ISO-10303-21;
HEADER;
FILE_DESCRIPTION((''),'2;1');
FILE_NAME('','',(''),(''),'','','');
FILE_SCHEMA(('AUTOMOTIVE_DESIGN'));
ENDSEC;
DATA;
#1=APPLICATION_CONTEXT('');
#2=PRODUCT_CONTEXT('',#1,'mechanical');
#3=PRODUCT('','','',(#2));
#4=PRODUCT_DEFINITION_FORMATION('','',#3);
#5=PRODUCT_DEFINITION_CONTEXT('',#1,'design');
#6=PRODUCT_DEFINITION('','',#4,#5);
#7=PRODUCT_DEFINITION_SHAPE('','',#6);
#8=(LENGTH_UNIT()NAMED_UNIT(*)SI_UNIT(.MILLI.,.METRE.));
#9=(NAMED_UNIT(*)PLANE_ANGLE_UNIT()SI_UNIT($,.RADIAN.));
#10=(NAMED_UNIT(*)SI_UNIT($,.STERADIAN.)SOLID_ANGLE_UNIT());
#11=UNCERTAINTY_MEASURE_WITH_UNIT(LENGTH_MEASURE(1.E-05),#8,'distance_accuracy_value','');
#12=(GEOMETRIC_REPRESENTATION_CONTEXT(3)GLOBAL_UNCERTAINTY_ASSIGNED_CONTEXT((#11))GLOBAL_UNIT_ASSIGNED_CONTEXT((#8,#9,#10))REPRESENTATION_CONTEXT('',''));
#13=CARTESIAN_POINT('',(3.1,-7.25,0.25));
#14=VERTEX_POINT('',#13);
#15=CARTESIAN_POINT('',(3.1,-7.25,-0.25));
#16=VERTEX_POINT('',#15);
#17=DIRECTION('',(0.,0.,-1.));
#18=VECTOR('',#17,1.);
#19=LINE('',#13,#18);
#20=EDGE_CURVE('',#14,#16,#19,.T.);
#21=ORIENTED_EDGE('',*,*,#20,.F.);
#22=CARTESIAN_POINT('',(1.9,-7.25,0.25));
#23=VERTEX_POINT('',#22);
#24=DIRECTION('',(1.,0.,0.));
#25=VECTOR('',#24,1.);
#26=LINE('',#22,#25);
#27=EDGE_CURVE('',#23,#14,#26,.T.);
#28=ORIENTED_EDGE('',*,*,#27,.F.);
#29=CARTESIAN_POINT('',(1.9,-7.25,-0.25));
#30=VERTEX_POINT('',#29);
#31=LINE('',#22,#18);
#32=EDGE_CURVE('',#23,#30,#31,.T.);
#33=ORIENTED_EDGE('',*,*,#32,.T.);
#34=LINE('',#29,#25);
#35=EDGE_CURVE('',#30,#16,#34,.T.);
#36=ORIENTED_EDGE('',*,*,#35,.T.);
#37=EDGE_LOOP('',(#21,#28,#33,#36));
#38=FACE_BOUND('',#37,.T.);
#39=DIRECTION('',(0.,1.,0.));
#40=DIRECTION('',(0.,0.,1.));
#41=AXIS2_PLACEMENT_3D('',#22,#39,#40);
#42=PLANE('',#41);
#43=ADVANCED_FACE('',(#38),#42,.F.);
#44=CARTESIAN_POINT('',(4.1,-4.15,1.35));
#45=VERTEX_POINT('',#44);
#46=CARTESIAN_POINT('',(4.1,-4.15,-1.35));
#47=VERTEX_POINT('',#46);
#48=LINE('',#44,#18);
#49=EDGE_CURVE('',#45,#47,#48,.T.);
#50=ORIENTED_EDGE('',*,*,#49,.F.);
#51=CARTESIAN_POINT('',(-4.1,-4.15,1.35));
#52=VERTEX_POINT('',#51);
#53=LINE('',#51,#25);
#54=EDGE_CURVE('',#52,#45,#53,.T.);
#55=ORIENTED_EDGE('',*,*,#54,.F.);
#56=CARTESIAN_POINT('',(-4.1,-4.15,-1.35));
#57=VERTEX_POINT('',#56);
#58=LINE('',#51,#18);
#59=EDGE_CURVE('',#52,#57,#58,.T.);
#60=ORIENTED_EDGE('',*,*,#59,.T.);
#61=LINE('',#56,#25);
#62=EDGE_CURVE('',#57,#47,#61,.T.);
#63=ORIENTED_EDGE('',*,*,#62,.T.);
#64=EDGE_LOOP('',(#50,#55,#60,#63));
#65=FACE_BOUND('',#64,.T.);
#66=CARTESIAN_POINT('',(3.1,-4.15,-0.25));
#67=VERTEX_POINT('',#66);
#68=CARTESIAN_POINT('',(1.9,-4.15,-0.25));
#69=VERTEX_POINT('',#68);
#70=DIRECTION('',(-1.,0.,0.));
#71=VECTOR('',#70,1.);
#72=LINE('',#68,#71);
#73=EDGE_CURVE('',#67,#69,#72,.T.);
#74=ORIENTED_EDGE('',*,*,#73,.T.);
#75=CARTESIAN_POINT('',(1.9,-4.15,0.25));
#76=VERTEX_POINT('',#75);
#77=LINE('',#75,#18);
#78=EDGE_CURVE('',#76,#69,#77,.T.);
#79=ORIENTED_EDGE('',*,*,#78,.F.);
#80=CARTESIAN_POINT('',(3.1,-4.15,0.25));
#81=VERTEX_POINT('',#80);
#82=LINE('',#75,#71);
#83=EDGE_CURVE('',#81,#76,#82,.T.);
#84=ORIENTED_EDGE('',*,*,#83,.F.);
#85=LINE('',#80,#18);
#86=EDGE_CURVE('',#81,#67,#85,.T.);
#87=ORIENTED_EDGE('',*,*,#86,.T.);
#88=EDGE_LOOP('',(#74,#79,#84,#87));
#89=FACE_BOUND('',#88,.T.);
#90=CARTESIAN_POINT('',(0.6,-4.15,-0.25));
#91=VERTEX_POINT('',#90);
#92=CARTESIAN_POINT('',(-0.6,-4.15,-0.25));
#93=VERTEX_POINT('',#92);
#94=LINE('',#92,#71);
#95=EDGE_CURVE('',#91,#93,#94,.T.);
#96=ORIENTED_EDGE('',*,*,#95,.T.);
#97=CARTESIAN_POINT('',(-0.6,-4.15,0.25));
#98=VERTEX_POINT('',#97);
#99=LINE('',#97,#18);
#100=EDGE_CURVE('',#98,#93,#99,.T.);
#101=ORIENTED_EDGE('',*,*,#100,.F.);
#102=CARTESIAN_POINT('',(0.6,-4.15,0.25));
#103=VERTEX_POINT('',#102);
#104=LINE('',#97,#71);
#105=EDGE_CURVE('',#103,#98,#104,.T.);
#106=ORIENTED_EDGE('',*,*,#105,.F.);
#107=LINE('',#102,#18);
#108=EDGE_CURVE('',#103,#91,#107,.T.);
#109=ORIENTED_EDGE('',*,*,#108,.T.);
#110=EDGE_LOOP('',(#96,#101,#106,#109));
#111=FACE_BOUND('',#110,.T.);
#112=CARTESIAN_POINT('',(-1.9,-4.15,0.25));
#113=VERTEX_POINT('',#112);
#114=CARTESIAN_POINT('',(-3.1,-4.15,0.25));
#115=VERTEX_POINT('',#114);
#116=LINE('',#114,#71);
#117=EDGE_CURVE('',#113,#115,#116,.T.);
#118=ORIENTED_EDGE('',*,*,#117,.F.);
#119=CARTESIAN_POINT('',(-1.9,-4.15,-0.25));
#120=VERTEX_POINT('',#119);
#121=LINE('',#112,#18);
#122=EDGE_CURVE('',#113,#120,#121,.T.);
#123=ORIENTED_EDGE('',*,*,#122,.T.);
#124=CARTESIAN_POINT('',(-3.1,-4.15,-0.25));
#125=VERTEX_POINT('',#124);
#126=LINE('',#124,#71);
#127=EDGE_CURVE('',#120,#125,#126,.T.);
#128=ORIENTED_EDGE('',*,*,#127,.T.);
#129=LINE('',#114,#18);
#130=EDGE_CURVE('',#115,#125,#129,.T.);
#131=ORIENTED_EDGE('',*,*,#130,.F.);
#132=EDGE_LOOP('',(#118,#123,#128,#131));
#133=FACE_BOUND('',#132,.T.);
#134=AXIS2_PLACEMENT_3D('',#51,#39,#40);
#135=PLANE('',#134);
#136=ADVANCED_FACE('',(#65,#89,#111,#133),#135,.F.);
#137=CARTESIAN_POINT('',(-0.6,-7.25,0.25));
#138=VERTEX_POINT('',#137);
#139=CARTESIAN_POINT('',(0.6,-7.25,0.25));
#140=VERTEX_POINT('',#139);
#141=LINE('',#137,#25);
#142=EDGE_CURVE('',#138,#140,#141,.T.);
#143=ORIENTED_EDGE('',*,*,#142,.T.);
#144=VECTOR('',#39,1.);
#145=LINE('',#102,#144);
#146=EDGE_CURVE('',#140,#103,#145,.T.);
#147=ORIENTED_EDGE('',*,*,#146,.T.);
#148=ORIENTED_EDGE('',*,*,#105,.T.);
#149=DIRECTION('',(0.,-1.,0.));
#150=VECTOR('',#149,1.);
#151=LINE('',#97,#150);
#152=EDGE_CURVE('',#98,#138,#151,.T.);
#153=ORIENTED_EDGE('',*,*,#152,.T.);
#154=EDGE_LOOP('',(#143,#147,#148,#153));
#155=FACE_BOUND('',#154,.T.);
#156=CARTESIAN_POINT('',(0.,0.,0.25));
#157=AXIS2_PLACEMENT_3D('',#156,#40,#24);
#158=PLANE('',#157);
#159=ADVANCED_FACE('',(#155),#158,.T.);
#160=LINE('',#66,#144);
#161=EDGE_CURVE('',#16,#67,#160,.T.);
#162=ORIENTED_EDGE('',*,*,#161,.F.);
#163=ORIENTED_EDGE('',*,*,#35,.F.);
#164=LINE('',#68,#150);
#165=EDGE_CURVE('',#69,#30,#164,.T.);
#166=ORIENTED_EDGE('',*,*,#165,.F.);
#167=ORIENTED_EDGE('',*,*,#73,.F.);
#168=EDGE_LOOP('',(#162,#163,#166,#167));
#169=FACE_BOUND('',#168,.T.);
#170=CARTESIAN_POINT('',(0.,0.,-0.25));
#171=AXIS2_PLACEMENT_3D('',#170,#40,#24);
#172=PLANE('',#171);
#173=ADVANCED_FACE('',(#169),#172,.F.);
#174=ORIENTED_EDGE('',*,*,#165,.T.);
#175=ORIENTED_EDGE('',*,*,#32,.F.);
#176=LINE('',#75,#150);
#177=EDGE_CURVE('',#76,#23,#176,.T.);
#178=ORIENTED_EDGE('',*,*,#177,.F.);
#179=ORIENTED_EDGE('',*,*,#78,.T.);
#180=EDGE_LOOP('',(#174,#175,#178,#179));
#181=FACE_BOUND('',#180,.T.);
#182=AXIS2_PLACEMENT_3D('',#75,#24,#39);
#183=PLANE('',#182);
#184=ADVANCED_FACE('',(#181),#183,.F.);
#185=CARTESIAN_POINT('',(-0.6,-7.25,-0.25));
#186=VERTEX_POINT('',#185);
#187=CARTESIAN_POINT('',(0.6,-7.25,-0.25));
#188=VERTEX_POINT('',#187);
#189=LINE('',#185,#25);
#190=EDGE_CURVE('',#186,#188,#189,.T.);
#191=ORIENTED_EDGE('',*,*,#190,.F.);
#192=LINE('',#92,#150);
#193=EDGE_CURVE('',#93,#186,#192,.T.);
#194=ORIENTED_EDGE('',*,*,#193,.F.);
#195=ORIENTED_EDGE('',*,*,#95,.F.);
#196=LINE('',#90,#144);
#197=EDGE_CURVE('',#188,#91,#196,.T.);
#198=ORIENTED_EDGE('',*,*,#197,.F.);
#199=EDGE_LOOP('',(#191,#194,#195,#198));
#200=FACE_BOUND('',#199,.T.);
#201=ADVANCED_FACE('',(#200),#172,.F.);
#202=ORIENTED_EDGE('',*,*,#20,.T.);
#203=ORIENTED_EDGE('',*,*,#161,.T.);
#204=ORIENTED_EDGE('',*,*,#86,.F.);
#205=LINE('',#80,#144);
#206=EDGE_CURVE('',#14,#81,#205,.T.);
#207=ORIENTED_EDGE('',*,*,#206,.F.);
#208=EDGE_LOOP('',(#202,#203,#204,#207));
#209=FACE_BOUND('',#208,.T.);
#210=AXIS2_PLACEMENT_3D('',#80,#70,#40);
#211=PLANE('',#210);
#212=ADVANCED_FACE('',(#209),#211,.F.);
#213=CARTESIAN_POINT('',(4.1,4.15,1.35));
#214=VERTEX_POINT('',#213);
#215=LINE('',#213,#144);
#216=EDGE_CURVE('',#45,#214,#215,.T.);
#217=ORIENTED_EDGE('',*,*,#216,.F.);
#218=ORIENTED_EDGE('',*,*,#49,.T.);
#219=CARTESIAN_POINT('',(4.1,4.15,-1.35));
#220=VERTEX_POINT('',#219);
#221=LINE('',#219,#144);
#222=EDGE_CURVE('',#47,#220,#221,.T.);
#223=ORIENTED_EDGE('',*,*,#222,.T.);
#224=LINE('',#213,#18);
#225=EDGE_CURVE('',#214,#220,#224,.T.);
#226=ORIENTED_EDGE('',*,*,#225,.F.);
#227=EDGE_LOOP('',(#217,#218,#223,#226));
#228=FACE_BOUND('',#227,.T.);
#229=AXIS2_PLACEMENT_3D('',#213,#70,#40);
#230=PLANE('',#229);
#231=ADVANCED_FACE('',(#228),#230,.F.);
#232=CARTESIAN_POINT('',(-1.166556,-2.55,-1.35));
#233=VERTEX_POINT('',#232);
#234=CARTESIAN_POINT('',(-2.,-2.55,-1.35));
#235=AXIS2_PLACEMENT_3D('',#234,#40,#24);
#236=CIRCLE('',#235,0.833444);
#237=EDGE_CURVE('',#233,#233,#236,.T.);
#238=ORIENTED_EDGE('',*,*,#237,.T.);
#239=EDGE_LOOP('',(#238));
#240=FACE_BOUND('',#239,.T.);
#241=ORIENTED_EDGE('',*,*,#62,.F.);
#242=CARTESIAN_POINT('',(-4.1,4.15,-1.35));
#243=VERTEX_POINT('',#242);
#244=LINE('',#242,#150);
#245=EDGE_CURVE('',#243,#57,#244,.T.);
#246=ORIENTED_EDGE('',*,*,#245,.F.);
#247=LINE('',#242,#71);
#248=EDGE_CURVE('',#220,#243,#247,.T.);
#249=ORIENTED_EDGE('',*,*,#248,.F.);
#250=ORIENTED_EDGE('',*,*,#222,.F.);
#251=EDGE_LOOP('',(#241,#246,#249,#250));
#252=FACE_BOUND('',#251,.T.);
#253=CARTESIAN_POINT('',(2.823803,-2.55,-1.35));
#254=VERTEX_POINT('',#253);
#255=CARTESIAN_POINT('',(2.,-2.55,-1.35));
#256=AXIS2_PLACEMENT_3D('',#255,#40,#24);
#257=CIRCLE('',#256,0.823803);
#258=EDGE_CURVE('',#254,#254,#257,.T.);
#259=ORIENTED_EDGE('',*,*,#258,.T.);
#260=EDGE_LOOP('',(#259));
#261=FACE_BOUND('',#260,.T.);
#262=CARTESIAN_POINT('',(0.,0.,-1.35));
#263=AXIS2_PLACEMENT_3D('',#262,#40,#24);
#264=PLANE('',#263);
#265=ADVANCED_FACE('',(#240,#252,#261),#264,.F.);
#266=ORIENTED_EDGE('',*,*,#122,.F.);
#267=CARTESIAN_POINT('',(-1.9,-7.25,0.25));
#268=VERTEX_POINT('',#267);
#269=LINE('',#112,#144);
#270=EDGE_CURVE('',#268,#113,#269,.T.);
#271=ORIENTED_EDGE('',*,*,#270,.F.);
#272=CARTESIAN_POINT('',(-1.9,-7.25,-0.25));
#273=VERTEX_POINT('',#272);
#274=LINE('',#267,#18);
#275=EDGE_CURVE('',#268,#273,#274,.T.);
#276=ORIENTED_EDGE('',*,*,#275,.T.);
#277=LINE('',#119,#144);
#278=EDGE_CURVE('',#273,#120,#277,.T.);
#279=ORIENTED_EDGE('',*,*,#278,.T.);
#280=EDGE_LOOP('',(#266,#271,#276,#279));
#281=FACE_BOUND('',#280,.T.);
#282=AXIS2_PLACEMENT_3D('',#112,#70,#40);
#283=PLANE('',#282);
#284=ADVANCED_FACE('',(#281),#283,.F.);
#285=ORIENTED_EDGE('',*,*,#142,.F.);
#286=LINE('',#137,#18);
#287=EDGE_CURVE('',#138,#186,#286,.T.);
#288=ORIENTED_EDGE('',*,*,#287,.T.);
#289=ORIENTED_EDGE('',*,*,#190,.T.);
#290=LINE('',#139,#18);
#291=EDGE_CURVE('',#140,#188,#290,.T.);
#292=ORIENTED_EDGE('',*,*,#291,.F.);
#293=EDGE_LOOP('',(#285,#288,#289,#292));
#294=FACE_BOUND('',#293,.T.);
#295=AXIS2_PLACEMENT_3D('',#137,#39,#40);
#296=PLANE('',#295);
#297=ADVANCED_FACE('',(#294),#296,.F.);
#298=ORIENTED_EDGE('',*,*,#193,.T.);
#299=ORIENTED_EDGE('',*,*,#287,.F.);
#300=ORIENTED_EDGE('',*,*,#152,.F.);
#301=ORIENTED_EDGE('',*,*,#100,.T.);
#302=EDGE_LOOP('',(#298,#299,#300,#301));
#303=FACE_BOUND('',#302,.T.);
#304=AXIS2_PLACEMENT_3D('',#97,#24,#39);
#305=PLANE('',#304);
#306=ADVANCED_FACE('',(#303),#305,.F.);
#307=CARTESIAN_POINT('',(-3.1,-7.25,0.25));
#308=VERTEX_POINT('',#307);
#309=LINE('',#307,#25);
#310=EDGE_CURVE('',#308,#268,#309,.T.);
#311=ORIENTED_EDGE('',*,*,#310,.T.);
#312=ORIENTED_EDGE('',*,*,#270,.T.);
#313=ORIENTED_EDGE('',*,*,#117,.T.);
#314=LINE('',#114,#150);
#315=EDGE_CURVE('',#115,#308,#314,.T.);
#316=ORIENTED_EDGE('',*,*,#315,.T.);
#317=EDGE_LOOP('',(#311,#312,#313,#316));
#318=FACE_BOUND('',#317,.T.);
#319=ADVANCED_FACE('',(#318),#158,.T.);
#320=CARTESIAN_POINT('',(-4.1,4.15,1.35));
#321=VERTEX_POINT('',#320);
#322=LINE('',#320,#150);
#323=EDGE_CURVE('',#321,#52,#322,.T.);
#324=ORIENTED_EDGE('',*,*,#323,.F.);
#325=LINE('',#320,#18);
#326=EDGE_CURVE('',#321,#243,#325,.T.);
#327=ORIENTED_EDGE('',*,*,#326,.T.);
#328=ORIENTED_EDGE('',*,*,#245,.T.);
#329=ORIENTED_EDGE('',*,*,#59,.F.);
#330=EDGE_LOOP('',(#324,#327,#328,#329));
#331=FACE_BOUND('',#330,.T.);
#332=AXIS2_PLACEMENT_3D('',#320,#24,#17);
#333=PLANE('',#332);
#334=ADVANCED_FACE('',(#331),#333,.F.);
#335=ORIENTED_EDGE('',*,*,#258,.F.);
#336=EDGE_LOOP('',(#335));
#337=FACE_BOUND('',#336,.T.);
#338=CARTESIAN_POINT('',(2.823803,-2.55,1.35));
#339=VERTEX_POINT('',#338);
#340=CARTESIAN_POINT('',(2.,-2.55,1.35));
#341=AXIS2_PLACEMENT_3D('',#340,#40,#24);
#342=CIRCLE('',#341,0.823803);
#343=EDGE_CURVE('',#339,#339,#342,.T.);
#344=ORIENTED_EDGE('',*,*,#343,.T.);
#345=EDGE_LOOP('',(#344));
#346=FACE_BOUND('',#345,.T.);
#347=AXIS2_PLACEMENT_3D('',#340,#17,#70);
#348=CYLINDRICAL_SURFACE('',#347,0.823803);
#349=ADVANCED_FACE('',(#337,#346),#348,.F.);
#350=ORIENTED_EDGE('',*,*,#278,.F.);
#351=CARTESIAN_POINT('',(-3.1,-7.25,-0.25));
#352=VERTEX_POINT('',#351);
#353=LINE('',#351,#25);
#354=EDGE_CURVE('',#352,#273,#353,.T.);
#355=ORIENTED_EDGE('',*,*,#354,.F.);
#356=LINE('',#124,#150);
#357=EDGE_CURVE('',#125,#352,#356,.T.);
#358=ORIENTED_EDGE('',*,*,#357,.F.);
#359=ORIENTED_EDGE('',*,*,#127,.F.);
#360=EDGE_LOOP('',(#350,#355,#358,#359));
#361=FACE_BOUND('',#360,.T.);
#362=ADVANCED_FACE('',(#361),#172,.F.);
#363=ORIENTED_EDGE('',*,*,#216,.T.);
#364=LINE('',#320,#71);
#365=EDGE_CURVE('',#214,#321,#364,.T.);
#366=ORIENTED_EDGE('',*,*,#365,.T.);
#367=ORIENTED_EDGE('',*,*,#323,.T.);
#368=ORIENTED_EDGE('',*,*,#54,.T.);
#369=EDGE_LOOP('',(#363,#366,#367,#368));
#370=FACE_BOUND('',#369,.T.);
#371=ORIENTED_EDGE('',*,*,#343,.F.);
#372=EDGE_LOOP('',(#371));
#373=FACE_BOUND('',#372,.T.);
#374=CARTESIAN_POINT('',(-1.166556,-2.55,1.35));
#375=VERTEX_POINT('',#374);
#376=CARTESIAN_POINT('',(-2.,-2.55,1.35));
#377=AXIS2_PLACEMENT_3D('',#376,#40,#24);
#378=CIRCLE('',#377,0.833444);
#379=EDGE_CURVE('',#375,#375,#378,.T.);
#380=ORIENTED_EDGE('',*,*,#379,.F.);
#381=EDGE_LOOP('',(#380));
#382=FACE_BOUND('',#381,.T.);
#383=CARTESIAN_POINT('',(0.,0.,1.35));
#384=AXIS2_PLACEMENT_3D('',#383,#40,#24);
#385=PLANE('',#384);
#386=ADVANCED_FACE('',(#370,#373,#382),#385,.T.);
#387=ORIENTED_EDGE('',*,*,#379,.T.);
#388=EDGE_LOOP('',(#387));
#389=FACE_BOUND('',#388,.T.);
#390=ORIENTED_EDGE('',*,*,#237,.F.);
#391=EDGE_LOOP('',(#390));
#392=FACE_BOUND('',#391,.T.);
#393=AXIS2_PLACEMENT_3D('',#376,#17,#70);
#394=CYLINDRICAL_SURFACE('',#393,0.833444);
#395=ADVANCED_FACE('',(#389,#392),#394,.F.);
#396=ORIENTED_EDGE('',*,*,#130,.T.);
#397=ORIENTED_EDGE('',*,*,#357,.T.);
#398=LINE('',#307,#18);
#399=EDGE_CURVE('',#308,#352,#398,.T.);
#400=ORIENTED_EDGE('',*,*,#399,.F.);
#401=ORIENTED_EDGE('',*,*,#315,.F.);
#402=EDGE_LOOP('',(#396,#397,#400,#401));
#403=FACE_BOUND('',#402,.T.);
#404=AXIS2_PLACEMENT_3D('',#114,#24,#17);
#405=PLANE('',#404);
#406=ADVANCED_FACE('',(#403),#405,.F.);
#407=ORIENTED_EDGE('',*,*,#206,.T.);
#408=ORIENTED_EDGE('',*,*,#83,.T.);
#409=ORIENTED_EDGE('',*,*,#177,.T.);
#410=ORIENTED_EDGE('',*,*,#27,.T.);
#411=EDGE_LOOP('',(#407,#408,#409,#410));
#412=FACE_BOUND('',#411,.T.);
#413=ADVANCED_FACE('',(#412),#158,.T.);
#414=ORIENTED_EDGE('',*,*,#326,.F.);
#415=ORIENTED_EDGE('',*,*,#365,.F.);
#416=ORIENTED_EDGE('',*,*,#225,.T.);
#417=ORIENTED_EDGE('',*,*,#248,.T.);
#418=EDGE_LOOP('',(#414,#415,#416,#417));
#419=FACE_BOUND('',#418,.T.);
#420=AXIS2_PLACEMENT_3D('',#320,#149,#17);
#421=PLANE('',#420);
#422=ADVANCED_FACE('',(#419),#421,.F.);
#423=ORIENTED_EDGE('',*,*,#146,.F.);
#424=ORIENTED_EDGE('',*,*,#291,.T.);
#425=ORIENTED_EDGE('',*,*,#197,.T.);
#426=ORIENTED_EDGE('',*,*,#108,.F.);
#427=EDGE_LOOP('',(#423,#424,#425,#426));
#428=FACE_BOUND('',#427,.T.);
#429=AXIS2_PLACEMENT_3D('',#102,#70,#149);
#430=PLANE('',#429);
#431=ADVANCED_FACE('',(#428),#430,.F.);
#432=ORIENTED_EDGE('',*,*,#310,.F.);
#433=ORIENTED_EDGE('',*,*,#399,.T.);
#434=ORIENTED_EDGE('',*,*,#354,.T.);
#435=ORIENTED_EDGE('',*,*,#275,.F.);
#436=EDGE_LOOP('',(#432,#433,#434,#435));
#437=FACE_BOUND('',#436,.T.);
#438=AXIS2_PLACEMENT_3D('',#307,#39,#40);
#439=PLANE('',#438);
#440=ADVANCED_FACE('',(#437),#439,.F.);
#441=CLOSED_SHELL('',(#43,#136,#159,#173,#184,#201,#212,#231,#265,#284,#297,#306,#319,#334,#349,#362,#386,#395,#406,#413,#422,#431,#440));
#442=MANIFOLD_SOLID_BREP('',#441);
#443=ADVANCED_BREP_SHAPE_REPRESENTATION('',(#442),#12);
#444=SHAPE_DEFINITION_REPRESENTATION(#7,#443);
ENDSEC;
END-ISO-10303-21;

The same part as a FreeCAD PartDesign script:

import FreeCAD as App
import Part
import Sketcher
Q = App.Units.Quantity

doc = App.newDocument("Part")
body = doc.addObject("PartDesign::Body", "Body")

sketch1 = body.newObject("Sketcher::SketchObject", "Sketch")
sketch1.AttachmentSupport = (doc.getObject("XY_Plane"), [""])
sketch1.MapMode = "FlatFace"
sketch1.addGeometry([
    Part.LineSegment(App.Vector(-4.1, 4.2, 0), App.Vector(-4.1, -4.2, 0)),
    Part.LineSegment(App.Vector(-4.1, -4.2, 0), App.Vector(4.1, -4.2, 0)),
    Part.LineSegment(App.Vector(4.1, -4.2, 0), App.Vector(4.1, 4.2, 0)),
    Part.LineSegment(App.Vector(4.1, 4.2, 0), App.Vector(-4.1, 4.2, 0)),
    Part.Circle(App.Vector(-2, -2.5, 0), App.Vector(0, 0, 1), 0.8),
    Part.Circle(App.Vector(2, -2.5, 0), App.Vector(0, 0, 1), 0.8),
], False)
sketch1.addConstraint([
    Sketcher.Constraint("Coincident", 0, 2, 1, 1),
    Sketcher.Constraint("Coincident", 1, 2, 2, 1),
    Sketcher.Constraint("Coincident", 2, 2, 3, 1),
    Sketcher.Constraint("Coincident", 3, 2, 0, 1),
    Sketcher.Constraint("Vertical", 0),
    Sketcher.Constraint("Horizontal", 1),
    Sketcher.Constraint("Vertical", 2),
    Sketcher.Constraint("Horizontal", 3),
    Sketcher.Constraint("Symmetric", 0, 2, 2, 2, -1, 1),
    Sketcher.Constraint("Symmetric", 4, 3, 5, 3, -2),
    Sketcher.Constraint("DistanceX", 1, 1, 1, 2, Q("8.2 mm")),
    Sketcher.Constraint("DistanceY", 0, 2, 0, 1, Q("8.3 mm")),
    Sketcher.Constraint("DistanceX", 4, 3, -1, 1, Q("2 mm")),
    Sketcher.Constraint("DistanceY", 0, 2, 4, 3, Q("1.6 mm")),
    Sketcher.Constraint("Diameter", 4, Q("1.666887 mm")),
    Sketcher.Constraint("Diameter", 5, Q("1.647606 mm")),
])
pad1 = body.newObject("PartDesign::Pad", "Pad")
pad1.Profile = sketch1
pad1.Length = 2.7
pad1.Midplane = True

sketch2 = body.newObject("Sketcher::SketchObject", "Sketch001")
sketch2.AttachmentSupport = (doc.getObject("XY_Plane"), [""])
sketch2.MapMode = "FlatFace"
sketch2.addGeometry([
    Part.LineSegment(App.Vector(-0.6, -4.2, 0), App.Vector(-0.6, -7.2, 0)),
    Part.LineSegment(App.Vector(-0.6, -7.2, 0), App.Vector(0.6, -7.2, 0)),
    Part.LineSegment(App.Vector(0.6, -7.2, 0), App.Vector(0.6, -4.2, 0)),
    Part.LineSegment(App.Vector(0.6, -4.2, 0), App.Vector(-0.6, -4.2, 0)),
    Part.LineSegment(App.Vector(1.9, -4.2, 0), App.Vector(1.9, -7.2, 0)),
    Part.LineSegment(App.Vector(1.9, -7.2, 0), App.Vector(3.1, -7.2, 0)),
    Part.LineSegment(App.Vector(3.1, -7.2, 0), App.Vector(3.1, -4.2, 0)),
    Part.LineSegment(App.Vector(3.1, -4.2, 0), App.Vector(1.9, -4.2, 0)),
    Part.LineSegment(App.Vector(-3.1, -4.2, 0), App.Vector(-3.1, -7.2, 0)),
    Part.LineSegment(App.Vector(-3.1, -7.2, 0), App.Vector(-1.9, -7.2, 0)),
    Part.LineSegment(App.Vector(-1.9, -7.2, 0), App.Vector(-1.9, -4.2, 0)),
    Part.LineSegment(App.Vector(-1.9, -4.2, 0), App.Vector(-3.1, -4.2, 0)),
], False)
sketch2.addConstraint([
    Sketcher.Constraint("Coincident", 0, 2, 1, 1),
    Sketcher.Constraint("Coincident", 1, 2, 2, 1),
    Sketcher.Constraint("Coincident", 2, 2, 3, 1),
    Sketcher.Constraint("Coincident", 3, 2, 0, 1),
    Sketcher.Constraint("Coincident", 4, 2, 5, 1),
    Sketcher.Constraint("Coincident", 5, 2, 6, 1),
    Sketcher.Constraint("Coincident", 6, 2, 7, 1),
    Sketcher.Constraint("Coincident", 7, 2, 4, 1),
    Sketcher.Constraint("Coincident", 8, 2, 9, 1),
    Sketcher.Constraint("Coincident", 9, 2, 10, 1),
    Sketcher.Constraint("Coincident", 10, 2, 11, 1),
    Sketcher.Constraint("Coincident", 11, 2, 8, 1),
    Sketcher.Constraint("Vertical", 0),
    Sketcher.Constraint("Horizontal", 1),
    Sketcher.Constraint("Vertical", 2),
    Sketcher.Constraint("Horizontal", 3),
    Sketcher.Constraint("Vertical", 4),
    Sketcher.Constraint("Horizontal", 5),
    Sketcher.Constraint("Vertical", 6),
    Sketcher.Constraint("Horizontal", 7),
    Sketcher.Constraint("Vertical", 8),
    Sketcher.Constraint("Horizontal", 9),
    Sketcher.Constraint("Vertical", 10),
    Sketcher.Constraint("Horizontal", 11),
    Sketcher.Constraint("Symmetric", 5, 2, 8, 2, -2),
    Sketcher.Constraint("Symmetric", 7, 2, 10, 2, -2),
    Sketcher.Constraint("Horizontal", 1, 2, 4, 2),
    Sketcher.Constraint("Horizontal", 3, 2, 6, 2),
    Sketcher.Constraint("Equal", 3, 5),
    Sketcher.Constraint("DistanceX", 1, 1, 1, 2, Q("1.2 mm")),
    Sketcher.Constraint("DistanceY", 0, 2, 0, 1, Q("3.1 mm")),
    Sketcher.Constraint("DistanceX", 8, 2, 4, 2, Q("5 mm")),
    Sketcher.Constraint("DistanceX", 0, 2, -1, 1, Q("0.6 mm")),
    Sketcher.Constraint("DistanceY", 0, 2, -1, 1, Q("7.25 mm")),
])
pad2 = body.newObject("PartDesign::Pad", "Pad001")
pad2.Profile = sketch2
pad2.Length = 0.5
pad2.Midplane = True

doc.recompute()
